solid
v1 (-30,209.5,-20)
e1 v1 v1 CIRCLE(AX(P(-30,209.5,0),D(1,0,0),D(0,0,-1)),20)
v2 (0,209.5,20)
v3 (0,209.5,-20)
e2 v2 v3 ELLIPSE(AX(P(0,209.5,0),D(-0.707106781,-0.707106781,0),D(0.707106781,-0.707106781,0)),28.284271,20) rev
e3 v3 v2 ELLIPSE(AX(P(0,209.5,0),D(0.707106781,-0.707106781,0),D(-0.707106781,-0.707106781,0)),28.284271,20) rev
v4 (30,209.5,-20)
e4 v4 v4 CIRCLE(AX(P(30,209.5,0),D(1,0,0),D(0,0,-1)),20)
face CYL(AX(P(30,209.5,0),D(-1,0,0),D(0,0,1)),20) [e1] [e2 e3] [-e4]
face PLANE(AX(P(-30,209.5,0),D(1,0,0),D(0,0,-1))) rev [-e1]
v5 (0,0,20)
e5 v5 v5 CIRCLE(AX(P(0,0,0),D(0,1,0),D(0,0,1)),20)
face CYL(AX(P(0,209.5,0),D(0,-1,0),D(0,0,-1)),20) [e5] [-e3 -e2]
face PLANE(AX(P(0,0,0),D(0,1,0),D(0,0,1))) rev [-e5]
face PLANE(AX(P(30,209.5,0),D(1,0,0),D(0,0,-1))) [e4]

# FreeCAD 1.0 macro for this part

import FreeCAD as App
import Part
import Sketcher
from FreeCAD import Vector

doc = App.newDocument("Part")
body = doc.addObject("PartDesign::Body", "Body")

# Sketch on XZ plane
sketch1 = body.newObject("Sketcher::SketchObject", "Sketch")
sketch1.AttachmentSupport = (doc.getObject("XZ_Plane"), [""])
sketch1.MapMode = "FlatFace"
sketch1.addGeometry(Part.Circle(Vector(0, 0, 0), Vector(0, 0, 1), 20), False)
sketch1.addConstraint([
    Sketcher.Constraint("Coincident", 0, 3, -1, 1),
    Sketcher.Constraint("Diameter", 0, 40.0),
])
pad1 = body.newObject("PartDesign::Pad", "Pad")
pad1.Profile = sketch1
pad1.Length = 209.5
pad1.Reversed = True

# Sketch on YZ plane
sketch2 = body.newObject("Sketcher::SketchObject", "Sketch001")
sketch2.AttachmentSupport = (doc.getObject("YZ_Plane"), [""])
sketch2.MapMode = "FlatFace"
sketch2.addGeometry(Part.Circle(Vector(210, 0, 0), Vector(0, 0, 1), 20), False)
sketch2.addConstraint([
    Sketcher.Constraint("PointOnObject", 0, 3, -1),
    Sketcher.Constraint("Diameter", 0, 40.0),
    Sketcher.Constraint("DistanceX", -1, 1, 0, 3, 209.5),
])
pad2 = body.newObject("PartDesign::Pad", "Pad001")
pad2.Profile = sketch2
pad2.Length = 60
pad2.Midplane = True

doc.recompute()
